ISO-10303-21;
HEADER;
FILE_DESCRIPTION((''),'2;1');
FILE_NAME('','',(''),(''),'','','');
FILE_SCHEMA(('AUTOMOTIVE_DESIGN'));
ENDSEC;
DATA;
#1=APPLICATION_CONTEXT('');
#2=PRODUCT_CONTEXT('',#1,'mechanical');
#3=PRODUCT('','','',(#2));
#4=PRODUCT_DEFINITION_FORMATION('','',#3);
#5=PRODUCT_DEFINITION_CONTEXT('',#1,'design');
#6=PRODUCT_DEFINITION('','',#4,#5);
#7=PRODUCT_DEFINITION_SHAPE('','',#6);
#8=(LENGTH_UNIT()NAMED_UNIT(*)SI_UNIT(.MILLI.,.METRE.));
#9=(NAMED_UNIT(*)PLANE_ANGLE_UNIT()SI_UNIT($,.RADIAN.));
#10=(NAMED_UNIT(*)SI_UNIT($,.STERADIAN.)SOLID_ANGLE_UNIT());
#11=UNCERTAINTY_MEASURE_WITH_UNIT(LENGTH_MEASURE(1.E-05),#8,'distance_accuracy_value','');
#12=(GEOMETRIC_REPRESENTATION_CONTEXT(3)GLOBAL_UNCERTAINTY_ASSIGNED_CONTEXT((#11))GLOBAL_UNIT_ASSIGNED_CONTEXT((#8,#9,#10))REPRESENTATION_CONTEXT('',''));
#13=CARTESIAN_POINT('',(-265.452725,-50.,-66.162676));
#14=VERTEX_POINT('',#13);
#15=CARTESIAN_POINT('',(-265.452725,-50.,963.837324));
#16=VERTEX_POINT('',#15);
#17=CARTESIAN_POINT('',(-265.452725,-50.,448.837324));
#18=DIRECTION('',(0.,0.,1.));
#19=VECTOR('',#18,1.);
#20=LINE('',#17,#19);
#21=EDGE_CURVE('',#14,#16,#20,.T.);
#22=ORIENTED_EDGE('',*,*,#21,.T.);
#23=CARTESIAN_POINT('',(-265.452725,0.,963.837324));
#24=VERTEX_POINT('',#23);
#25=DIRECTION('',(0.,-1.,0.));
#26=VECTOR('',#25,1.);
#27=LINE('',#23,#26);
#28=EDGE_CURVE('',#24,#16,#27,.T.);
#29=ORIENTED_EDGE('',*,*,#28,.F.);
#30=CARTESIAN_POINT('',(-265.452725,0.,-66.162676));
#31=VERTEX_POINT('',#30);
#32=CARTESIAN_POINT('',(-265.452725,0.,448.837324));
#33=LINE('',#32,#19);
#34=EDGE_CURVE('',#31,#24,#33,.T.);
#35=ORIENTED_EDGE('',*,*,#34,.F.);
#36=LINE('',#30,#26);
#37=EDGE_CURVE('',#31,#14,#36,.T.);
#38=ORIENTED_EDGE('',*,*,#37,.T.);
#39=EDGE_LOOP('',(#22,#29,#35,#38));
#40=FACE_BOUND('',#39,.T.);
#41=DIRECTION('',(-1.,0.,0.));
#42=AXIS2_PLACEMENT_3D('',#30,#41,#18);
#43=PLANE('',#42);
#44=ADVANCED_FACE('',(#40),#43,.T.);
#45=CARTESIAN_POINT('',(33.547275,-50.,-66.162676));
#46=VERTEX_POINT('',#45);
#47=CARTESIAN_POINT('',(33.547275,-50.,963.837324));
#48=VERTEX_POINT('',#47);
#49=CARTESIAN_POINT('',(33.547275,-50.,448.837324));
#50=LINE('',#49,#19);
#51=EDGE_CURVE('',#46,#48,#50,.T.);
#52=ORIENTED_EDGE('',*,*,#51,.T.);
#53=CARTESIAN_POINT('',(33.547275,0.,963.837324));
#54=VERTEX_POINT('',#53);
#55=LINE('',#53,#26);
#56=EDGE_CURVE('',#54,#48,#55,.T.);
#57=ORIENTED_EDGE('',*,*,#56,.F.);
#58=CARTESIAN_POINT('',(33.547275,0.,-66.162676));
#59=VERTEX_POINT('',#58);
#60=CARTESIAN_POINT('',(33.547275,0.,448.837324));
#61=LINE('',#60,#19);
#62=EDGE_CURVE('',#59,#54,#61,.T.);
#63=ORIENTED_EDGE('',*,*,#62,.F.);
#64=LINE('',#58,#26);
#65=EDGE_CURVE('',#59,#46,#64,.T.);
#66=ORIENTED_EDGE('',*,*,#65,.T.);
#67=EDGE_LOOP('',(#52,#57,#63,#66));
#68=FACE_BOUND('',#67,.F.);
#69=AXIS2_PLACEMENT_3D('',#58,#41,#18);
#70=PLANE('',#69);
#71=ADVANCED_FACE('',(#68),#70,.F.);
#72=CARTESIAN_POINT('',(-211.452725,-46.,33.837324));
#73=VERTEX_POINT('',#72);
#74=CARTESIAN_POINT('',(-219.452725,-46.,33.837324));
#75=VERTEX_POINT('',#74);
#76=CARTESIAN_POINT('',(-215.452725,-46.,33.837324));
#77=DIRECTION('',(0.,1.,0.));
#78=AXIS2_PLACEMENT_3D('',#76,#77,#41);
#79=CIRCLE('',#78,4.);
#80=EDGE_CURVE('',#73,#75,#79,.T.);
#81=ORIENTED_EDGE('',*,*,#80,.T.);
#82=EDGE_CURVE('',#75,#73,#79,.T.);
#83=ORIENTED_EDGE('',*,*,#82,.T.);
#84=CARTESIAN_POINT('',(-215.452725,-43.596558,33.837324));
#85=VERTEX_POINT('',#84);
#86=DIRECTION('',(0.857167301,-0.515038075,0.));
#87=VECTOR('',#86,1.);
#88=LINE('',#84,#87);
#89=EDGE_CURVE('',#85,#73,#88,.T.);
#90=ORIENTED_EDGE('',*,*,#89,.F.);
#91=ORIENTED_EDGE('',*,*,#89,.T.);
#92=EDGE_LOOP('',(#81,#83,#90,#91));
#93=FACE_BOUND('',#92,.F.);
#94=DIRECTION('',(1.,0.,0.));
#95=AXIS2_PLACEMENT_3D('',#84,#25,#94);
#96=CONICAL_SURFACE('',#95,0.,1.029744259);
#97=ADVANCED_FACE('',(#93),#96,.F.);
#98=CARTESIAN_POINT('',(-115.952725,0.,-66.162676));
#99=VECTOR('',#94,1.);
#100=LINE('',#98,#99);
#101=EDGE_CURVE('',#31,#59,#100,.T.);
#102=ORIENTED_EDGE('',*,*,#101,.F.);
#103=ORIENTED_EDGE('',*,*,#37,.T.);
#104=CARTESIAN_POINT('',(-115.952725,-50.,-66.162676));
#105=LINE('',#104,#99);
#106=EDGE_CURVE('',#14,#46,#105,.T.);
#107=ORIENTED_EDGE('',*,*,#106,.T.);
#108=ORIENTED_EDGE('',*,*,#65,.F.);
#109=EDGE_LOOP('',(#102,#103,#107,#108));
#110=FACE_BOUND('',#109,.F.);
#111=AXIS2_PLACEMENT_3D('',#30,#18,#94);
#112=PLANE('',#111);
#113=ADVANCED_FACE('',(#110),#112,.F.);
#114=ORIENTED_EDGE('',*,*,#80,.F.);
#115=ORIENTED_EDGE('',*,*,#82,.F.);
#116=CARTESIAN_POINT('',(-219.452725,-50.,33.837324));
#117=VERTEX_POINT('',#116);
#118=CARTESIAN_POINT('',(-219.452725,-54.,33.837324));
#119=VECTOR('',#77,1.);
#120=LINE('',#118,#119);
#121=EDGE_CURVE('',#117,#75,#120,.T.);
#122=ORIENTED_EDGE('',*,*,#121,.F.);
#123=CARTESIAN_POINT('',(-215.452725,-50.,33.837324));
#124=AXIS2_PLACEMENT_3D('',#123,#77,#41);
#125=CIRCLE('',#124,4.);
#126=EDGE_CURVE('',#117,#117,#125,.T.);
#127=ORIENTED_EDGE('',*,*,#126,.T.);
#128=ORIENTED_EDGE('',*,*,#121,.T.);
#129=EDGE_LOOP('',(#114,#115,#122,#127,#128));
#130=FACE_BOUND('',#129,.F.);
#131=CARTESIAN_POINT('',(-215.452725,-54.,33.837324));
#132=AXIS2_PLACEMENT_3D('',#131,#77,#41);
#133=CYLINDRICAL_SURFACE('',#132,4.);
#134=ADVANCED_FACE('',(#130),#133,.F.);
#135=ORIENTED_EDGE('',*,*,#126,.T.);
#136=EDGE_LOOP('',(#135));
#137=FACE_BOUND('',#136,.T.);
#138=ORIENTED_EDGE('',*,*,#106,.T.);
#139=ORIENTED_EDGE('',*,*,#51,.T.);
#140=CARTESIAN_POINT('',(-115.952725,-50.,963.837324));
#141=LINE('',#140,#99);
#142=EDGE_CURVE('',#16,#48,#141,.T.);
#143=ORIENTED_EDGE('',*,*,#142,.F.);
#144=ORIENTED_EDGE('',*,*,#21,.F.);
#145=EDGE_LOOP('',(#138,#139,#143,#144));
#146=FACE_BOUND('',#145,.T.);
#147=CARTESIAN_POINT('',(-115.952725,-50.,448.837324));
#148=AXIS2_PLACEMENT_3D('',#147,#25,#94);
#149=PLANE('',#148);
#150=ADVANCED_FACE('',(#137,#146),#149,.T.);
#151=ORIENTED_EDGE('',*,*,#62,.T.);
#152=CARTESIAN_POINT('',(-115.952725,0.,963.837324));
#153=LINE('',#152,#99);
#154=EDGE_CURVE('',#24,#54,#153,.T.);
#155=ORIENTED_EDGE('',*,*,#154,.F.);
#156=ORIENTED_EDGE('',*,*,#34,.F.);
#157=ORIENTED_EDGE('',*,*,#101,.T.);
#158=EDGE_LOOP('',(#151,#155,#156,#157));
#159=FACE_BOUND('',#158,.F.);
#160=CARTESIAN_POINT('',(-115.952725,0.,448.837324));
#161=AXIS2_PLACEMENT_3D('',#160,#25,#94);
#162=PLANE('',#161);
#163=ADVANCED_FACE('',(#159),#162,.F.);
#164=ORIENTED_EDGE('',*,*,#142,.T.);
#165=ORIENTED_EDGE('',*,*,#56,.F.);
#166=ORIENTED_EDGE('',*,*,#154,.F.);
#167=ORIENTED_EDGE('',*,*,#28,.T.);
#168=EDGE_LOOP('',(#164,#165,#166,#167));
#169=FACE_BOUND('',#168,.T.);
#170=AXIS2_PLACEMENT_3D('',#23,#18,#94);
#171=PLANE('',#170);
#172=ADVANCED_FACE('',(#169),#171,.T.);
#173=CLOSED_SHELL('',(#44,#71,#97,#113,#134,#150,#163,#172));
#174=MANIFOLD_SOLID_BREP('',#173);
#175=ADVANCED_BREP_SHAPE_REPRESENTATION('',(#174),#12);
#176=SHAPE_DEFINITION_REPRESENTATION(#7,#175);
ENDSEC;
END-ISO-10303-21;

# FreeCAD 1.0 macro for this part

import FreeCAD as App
import Part
import Sketcher

V = App.Vector


def add_polygon(sketch, points):
    """Adds a closed chain of lines whose ends are joined by coincident constraints."""
    first, n = sketch.GeometryCount, len(points)
    for a, b in zip(points, points[1:] + points[:1]):
        sketch.addGeometry(Part.LineSegment(App.Vector(*a, 0), App.Vector(*b, 0)), False)
    for i in range(n):
        sketch.addConstraint(Sketcher.Constraint("Coincident", first + i, 2, first + (i + 1) % n, 1))

doc = App.newDocument("Part")
params = doc.addObject("Spreadsheet::Sheet", "Params")
for row, (alias, value) in enumerate([
    ("sketch1_width", "299 mm"),
    ("sketch1_height", "1030 mm"),
    ("pad1_length", "50 mm"),
    ("sketch2_diameter", "8 mm"),
    ("hole_diameter", "8 mm"),
    ("hole_depth", "4 mm"),
], start=1):
    params.set(f"A{row}", alias)
    params.set(f"B{row}", "=" + value)
    params.setAlias(f"B{row}", alias)

body = doc.addObject("PartDesign::Body", "Body")

sketch1 = body.newObject("Sketcher::SketchObject", "Sketch")
sketch1.AttachmentSupport = (doc.getObject("XZ_Plane"), [""])
sketch1.MapMode = "FlatFace"
add_polygon(sketch1, [(-265, 964), (-265, -66), (34, -66), (34, 964)])
sketch1.addConstraint([
    Sketcher.Constraint("Vertical", 0),
    Sketcher.Constraint("Horizontal", 1),
    Sketcher.Constraint("Vertical", 2),
    Sketcher.Constraint("Horizontal", 3),
    Sketcher.Constraint("DistanceX", 1, 1, 1, 2, 299.0),
    Sketcher.Constraint("DistanceY", 0, 2, 0, 1, 1030.0),
    Sketcher.Constraint("DistanceX", 0, 2, -1, 1, 265.452725),
    Sketcher.Constraint("DistanceY", 0, 2, -1, 1, 66.162676),
])
sketch1.setExpression("Constraints[8]", "Params.sketch1_width")
sketch1.setExpression("Constraints[9]", "Params.sketch1_height")
pad1 = body.newObject("PartDesign::Pad", "Pad")
pad1.Profile = sketch1
pad1.setExpression("Length", "Params.pad1_length")

sketch2 = body.newObject("Sketcher::SketchObject", "Sketch001")
sketch2.AttachmentSupport = (doc.getObject("XZ_Plane"), [""])
sketch2.MapMode = "FlatFace"
sketch2.AttachmentOffset = App.Placement(V(0, 0, 50), App.Rotation())
sketch2.addGeometry(Part.Circle(V(-215.5, 33.8, 0), V(0, 0, 1), 4), False)
sketch2.addConstraint([
    Sketcher.Constraint("Diameter", 0, 8.0),
    Sketcher.Constraint("DistanceX", 0, 3, -1, 1, 215.452725),
    Sketcher.Constraint("DistanceY", -1, 1, 0, 3, 33.837324),
])
sketch2.setExpression("Constraints[0]", "Params.sketch2_diameter")
doc.recompute()
hole = body.newObject("PartDesign::Hole", "Hole")
hole.Profile = sketch2
hole.ThreadType = "None"
hole.setExpression("Diameter", "Params.hole_diameter")
hole.DepthType = "Dimension"
hole.setExpression("Depth", "Params.hole_depth")
hole.DrillPoint = "Angled"
hole.DrillPointAngle = 118

doc.recompute()
